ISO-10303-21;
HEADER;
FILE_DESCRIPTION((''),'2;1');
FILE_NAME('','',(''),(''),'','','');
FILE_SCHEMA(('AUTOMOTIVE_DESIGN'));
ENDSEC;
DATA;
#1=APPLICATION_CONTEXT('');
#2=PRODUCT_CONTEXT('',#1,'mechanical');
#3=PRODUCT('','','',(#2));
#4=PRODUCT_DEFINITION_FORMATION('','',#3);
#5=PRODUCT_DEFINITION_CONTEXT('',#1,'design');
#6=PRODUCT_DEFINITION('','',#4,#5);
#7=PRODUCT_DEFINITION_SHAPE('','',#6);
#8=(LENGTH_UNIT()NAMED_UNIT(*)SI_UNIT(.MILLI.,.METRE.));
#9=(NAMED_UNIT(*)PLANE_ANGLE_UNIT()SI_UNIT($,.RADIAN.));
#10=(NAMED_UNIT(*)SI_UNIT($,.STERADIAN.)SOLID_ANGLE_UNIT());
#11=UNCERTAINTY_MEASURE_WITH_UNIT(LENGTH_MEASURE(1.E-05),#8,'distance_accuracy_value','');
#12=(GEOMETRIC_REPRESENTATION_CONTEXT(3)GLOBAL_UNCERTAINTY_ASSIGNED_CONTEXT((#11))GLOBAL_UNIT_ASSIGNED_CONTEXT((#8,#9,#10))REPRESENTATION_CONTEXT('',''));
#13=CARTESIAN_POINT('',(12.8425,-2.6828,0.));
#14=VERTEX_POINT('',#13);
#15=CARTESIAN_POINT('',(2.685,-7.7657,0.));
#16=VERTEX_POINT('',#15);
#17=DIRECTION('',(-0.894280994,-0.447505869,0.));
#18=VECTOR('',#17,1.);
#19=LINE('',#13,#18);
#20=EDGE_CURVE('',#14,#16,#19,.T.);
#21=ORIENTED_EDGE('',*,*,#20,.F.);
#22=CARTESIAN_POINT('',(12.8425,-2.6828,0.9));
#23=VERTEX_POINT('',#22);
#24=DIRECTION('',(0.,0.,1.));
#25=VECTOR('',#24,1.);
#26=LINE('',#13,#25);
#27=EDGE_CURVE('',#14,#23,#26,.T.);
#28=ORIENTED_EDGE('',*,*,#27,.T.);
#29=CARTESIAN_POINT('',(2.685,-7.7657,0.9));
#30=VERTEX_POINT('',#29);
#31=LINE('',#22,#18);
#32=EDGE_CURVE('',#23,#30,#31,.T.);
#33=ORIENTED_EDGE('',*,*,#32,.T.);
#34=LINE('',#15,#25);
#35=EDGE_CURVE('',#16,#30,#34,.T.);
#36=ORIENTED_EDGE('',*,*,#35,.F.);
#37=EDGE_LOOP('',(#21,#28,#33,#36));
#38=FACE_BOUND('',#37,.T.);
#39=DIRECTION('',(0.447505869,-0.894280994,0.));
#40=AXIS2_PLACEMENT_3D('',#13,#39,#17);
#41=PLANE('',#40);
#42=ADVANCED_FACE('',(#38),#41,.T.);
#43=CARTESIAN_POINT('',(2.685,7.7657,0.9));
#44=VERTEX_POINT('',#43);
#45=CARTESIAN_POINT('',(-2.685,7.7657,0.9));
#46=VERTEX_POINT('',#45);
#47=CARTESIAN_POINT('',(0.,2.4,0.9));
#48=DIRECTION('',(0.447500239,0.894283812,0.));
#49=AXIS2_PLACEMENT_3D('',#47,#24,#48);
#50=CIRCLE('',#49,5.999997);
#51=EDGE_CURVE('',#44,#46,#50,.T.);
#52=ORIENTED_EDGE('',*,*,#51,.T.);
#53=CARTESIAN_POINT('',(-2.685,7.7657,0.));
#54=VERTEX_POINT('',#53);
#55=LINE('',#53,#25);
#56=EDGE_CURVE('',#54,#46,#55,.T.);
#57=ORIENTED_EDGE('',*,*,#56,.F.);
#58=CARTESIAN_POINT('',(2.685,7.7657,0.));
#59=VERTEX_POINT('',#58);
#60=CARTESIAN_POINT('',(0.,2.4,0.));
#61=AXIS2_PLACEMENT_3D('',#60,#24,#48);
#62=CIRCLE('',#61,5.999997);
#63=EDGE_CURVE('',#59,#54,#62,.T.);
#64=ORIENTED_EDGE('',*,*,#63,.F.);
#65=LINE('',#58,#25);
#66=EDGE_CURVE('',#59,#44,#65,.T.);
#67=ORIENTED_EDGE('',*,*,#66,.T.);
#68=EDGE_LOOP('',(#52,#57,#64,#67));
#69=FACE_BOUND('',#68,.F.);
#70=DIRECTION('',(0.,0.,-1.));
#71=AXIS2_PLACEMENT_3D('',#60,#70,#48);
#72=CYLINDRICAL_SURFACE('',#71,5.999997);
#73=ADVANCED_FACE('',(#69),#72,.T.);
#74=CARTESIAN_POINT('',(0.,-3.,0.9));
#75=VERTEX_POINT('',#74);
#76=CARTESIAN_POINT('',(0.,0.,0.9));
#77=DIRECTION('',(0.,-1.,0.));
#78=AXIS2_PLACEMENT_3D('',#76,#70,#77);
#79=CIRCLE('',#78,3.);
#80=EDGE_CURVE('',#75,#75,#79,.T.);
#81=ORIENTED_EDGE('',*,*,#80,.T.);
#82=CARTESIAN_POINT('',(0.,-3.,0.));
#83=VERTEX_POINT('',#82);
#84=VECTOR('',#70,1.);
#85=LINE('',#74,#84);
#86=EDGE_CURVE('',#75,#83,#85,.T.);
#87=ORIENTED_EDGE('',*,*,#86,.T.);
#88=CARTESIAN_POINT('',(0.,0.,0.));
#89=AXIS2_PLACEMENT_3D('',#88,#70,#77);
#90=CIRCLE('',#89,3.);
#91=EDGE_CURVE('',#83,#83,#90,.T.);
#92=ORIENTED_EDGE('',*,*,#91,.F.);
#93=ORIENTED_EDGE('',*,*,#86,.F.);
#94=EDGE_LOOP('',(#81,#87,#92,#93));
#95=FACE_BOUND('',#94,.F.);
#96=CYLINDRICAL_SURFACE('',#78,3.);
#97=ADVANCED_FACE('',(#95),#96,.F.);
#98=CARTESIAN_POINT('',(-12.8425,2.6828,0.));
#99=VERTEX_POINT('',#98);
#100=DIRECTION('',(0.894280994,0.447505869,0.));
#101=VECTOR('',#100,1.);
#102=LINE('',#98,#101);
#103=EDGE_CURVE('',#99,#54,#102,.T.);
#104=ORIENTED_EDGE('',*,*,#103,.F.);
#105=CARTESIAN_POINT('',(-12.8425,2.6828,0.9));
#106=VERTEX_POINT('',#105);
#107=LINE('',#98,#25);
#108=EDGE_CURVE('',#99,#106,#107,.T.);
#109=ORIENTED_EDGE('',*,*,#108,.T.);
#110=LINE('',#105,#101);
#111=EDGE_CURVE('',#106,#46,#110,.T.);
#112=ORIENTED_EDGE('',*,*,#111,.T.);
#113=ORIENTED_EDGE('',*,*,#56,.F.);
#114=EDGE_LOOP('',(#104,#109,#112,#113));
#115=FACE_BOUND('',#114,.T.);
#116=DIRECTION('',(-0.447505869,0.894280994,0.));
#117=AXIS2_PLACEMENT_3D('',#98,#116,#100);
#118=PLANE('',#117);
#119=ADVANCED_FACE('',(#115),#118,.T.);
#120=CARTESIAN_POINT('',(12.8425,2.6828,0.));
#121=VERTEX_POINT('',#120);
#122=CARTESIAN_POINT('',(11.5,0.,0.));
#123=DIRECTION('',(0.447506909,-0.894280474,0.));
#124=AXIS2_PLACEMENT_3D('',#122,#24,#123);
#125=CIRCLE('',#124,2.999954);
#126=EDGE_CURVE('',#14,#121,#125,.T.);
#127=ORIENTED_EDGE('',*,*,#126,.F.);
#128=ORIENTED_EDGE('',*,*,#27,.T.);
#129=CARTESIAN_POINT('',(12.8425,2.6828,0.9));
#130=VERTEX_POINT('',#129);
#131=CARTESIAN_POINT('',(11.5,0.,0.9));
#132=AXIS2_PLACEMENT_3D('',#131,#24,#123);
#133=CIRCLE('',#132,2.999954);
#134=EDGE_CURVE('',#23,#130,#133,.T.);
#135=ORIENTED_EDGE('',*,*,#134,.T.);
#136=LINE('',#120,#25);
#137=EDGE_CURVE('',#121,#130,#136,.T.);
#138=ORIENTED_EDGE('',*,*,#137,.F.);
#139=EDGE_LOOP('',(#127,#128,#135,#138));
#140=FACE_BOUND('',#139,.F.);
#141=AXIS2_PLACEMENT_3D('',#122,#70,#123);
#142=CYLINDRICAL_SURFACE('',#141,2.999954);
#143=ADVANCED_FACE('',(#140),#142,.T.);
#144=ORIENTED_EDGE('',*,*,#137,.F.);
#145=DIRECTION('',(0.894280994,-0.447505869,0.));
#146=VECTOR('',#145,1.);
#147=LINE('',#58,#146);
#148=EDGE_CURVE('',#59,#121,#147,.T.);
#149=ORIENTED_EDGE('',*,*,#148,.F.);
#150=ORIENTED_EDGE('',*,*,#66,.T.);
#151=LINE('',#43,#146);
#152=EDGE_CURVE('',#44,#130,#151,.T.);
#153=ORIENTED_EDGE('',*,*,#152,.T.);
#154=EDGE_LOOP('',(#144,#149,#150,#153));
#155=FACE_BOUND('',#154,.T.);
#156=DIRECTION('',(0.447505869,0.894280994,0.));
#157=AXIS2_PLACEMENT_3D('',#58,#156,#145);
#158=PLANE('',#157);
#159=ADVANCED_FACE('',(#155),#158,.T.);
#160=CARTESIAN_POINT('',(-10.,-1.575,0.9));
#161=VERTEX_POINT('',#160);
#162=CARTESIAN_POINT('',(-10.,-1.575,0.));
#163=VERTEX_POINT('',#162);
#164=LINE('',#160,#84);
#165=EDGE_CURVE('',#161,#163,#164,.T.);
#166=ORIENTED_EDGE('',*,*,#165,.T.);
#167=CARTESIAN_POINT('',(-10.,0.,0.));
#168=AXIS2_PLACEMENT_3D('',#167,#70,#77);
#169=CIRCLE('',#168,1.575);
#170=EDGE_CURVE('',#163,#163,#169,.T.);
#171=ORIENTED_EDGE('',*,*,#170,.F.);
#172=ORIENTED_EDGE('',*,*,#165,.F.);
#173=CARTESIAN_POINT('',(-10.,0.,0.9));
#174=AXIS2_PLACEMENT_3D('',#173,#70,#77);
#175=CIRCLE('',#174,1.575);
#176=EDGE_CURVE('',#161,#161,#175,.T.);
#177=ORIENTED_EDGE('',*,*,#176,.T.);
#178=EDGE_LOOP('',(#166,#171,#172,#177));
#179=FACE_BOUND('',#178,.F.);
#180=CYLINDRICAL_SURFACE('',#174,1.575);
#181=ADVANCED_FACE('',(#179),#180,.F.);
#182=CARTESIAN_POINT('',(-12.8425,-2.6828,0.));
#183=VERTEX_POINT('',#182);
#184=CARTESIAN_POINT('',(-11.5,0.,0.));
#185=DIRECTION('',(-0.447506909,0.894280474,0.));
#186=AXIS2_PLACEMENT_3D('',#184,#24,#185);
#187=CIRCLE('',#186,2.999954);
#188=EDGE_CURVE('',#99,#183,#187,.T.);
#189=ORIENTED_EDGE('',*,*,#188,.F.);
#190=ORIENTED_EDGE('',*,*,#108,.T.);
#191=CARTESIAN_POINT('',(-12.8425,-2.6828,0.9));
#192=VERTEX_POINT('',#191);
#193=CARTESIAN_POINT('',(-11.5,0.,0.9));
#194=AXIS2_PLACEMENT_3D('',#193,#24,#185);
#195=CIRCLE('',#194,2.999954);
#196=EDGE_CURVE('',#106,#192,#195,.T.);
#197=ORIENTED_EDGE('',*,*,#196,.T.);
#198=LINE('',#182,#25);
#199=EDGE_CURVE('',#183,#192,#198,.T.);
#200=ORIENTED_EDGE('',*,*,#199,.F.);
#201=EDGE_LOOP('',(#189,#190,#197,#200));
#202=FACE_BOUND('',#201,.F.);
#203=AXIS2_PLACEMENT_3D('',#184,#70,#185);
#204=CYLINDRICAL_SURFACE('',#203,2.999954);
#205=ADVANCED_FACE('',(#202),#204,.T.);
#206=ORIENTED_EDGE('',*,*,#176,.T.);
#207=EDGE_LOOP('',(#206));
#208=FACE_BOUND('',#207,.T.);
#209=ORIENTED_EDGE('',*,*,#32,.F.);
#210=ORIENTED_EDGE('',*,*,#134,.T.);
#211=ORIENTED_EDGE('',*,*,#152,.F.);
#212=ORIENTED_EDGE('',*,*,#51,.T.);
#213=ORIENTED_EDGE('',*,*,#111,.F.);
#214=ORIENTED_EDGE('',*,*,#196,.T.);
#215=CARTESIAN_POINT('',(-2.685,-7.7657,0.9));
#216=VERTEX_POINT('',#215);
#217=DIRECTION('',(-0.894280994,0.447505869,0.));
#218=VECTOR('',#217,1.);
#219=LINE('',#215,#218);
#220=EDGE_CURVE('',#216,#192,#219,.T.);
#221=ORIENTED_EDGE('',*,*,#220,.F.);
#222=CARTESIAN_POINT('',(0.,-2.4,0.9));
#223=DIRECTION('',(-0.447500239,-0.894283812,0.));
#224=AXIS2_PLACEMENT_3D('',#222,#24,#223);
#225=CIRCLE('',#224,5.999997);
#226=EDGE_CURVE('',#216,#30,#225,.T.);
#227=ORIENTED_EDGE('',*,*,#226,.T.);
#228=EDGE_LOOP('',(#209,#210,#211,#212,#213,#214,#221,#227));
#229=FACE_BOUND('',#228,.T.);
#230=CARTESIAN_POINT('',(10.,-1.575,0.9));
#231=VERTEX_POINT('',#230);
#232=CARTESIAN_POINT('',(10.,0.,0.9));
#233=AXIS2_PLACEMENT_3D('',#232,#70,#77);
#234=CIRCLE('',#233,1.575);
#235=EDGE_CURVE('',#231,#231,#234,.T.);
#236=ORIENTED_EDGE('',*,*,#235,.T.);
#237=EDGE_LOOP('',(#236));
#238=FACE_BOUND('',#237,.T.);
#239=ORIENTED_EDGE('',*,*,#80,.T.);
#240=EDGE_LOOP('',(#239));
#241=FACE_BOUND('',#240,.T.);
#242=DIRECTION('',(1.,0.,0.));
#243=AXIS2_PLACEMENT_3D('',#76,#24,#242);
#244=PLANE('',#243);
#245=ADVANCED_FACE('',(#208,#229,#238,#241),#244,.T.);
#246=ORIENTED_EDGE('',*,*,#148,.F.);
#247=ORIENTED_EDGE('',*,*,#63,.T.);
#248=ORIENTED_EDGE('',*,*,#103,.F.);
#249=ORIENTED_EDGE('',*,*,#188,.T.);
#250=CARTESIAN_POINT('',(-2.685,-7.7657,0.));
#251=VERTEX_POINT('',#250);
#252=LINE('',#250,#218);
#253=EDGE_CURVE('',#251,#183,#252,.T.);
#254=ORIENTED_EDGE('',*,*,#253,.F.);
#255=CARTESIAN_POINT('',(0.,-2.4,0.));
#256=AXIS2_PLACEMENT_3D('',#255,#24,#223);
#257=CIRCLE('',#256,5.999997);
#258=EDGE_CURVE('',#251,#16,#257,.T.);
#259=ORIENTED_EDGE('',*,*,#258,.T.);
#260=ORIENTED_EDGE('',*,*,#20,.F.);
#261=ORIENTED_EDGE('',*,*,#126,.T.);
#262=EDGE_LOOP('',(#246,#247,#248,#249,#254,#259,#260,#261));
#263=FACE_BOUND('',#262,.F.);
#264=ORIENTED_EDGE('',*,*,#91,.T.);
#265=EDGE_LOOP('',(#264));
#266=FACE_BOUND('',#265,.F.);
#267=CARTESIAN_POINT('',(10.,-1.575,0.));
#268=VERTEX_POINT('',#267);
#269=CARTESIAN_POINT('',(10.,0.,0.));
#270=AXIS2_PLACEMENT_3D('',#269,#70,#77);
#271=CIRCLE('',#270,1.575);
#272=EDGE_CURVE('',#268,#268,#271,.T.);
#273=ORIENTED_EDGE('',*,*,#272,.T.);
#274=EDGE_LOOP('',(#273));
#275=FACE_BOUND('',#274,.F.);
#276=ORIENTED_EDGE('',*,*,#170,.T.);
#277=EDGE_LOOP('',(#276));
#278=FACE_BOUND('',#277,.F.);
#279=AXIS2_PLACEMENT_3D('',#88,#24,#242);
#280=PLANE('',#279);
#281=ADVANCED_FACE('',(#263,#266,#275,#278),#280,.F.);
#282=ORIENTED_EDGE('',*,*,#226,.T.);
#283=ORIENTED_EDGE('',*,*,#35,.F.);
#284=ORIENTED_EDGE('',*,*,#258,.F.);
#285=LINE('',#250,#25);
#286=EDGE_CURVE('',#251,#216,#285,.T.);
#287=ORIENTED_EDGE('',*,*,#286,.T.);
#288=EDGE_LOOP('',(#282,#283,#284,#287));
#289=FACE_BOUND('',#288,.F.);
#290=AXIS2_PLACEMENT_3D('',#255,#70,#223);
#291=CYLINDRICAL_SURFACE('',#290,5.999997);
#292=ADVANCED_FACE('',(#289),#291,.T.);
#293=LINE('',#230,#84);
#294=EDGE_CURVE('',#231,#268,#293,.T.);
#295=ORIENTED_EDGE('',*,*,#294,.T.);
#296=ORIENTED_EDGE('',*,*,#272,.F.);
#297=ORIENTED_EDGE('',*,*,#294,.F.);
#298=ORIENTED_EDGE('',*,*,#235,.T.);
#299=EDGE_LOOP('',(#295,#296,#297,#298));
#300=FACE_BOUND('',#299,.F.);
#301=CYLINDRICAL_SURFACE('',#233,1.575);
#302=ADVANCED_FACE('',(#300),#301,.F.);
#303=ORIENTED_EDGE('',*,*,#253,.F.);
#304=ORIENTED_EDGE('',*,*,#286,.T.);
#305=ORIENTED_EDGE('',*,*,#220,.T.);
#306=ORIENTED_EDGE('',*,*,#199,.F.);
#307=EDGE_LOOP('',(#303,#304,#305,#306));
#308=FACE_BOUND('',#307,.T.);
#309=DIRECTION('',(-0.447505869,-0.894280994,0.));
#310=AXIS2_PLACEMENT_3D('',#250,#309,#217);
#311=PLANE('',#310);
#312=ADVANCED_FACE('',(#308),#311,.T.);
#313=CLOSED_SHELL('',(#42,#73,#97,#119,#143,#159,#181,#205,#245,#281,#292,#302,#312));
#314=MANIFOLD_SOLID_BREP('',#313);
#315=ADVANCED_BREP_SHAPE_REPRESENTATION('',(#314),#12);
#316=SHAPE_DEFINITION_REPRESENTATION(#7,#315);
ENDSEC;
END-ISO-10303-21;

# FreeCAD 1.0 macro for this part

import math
import FreeCAD as App
import Part
import Sketcher

V = App.Vector
Q = App.Units.Quantity

doc = App.newDocument("Part")
body = doc.addObject("PartDesign::Body", "Body")

# Sketch on XY plane
sketch1 = body.newObject("Sketcher::SketchObject", "Sketch")
sketch1.AttachmentSupport = (doc.getObject("XY_Plane"), [""])
sketch1.MapMode = "FlatFace"
sketch1.addGeometry(Part.LineSegment(V(-2.685, 7.7657, 0), V(-12.8425, 2.6828, 0)), False)
sketch1.addGeometry(Part.ArcOfCircle(Part.Circle(V(-11.5, 0, 0), V(0, 0, 1), 2.999954), math.radians(116.583842), math.radians(243.416158)), False)
sketch1.addGeometry(Part.LineSegment(V(-12.8425, -2.6828, 0), V(-2.685, -7.7657, 0)), False)
sketch1.addGeometry(Part.ArcOfCircle(Part.Circle(V(0, -2.4, 0), V(0, 0, 1), 5.999997), math.radians(-116.583415), math.radians(-63.416585)), False)
sketch1.addGeometry(Part.LineSegment(V(2.685, -7.7657, 0), V(12.8425, -2.6828, 0)), False)
sketch1.addGeometry(Part.ArcOfCircle(Part.Circle(V(11.5, 0, 0), V(0, 0, 1), 2.999954), math.radians(-63.416158), math.radians(63.416158)), False)
sketch1.addGeometry(Part.LineSegment(V(12.8425, 2.6828, 0), V(2.685, 7.7657, 0)), False)
sketch1.addGeometry(Part.ArcOfCircle(Part.Circle(V(0, 2.4, 0), V(0, 0, 1), 5.999997), math.radians(63.416585), math.radians(116.583415)), False)
sketch1.addConstraint(Sketcher.Constraint("Tangent", 0, 2, 1, 1))
sketch1.addConstraint(Sketcher.Constraint("Tangent", 1, 2, 2, 1))
sketch1.addConstraint(Sketcher.Constraint("Tangent", 2, 2, 3, 1))
sketch1.addConstraint(Sketcher.Constraint("Tangent", 3, 2, 4, 1))
sketch1.addConstraint(Sketcher.Constraint("Tangent", 4, 2, 5, 1))
sketch1.addConstraint(Sketcher.Constraint("Tangent", 5, 2, 6, 1))
sketch1.addConstraint(Sketcher.Constraint("Tangent", 6, 2, 7, 1))
sketch1.addConstraint(Sketcher.Constraint("Tangent", 7, 2, 0, 1))
sketch1.addConstraint(Sketcher.Constraint("Equal", 1, 5))
sketch1.addConstraint(Sketcher.Constraint("Equal", 3, 7))
sketch1.addConstraint(Sketcher.Constraint("Symmetric", 1, 3, 5, 3, -1, 1))
sketch1.addConstraint(Sketcher.Constraint("Symmetric", 3, 3, 7, 3, -1, 1))
sketch1.addConstraint(Sketcher.Constraint("Symmetric", 2, 2, 3, 2, -2))
sketch1.addConstraint(Sketcher.Constraint("Radius", 1, Q("3 mm")))
sketch1.addConstraint(Sketcher.Constraint("Radius", 3, Q("6 mm")))
sketch1.addConstraint(Sketcher.Constraint("DistanceX", 1, 3, 5, 3, Q("23 mm")))
sketch1.addConstraint(Sketcher.Constraint("DistanceY", 3, 3, -1, 1, Q("2.4 mm")))
pad1 = body.newObject("PartDesign::Pad", "Pad")
pad1.Profile = sketch1
pad1.Length = 0.9

# Sketch on XY plane
sketch2 = body.newObject("Sketcher::SketchObject", "Sketch001")
sketch2.AttachmentSupport = (doc.getObject("XY_Plane"), [""])
sketch2.MapMode = "FlatFace"
sketch2.AttachmentOffset = App.Placement(V(0, 0, 0.9), App.Rotation())
sketch2.addGeometry(Part.Circle(V(0, 0, 0), V(0, 0, 1), 3), False)
sketch2.addConstraint(Sketcher.Constraint("Coincident", 0, 3, -1, 1))
sketch2.addConstraint(Sketcher.Constraint("Diameter", 0, Q("6 mm")))
doc.recompute()
hole = body.newObject("PartDesign::Hole", "Hole")
hole.Profile = sketch2
hole.ThreadType = "None"
hole.Diameter = 6
hole.DepthType = "ThroughAll"

# Sketch on XY plane
sketch3 = body.newObject("Sketcher::SketchObject", "Sketch002")
sketch3.AttachmentSupport = (doc.getObject("XY_Plane"), [""])
sketch3.MapMode = "FlatFace"
sketch3.AttachmentOffset = App.Placement(V(0, 0, 0.9), App.Rotation())
sketch3.addGeometry(Part.Circle(V(-10, 0, 0), V(0, 0, 1), 1.575), False)
sketch3.addGeometry(Part.Circle(V(10, 0, 0), V(0, 0, 1), 1.575), False)
sketch3.addConstraint(Sketcher.Constraint("Equal", 0, 1))
sketch3.addConstraint(Sketcher.Constraint("Symmetric", 0, 3, 1, 3, -1, 1))
sketch3.addConstraint(Sketcher.Constraint("PointOnObject", 0, 3, -1))
sketch3.addConstraint(Sketcher.Constraint("Diameter", 0, Q("3.15 mm")))
sketch3.addConstraint(Sketcher.Constraint("DistanceX", 0, 3, -1, 1, Q("10 mm")))
doc.recompute()
hole2 = body.newObject("PartDesign::Hole", "Hole001")
hole2.Profile = sketch3
hole2.ThreadType = "None"
hole2.Diameter = 3.15
hole2.DepthType = "ThroughAll"

doc.recompute()
